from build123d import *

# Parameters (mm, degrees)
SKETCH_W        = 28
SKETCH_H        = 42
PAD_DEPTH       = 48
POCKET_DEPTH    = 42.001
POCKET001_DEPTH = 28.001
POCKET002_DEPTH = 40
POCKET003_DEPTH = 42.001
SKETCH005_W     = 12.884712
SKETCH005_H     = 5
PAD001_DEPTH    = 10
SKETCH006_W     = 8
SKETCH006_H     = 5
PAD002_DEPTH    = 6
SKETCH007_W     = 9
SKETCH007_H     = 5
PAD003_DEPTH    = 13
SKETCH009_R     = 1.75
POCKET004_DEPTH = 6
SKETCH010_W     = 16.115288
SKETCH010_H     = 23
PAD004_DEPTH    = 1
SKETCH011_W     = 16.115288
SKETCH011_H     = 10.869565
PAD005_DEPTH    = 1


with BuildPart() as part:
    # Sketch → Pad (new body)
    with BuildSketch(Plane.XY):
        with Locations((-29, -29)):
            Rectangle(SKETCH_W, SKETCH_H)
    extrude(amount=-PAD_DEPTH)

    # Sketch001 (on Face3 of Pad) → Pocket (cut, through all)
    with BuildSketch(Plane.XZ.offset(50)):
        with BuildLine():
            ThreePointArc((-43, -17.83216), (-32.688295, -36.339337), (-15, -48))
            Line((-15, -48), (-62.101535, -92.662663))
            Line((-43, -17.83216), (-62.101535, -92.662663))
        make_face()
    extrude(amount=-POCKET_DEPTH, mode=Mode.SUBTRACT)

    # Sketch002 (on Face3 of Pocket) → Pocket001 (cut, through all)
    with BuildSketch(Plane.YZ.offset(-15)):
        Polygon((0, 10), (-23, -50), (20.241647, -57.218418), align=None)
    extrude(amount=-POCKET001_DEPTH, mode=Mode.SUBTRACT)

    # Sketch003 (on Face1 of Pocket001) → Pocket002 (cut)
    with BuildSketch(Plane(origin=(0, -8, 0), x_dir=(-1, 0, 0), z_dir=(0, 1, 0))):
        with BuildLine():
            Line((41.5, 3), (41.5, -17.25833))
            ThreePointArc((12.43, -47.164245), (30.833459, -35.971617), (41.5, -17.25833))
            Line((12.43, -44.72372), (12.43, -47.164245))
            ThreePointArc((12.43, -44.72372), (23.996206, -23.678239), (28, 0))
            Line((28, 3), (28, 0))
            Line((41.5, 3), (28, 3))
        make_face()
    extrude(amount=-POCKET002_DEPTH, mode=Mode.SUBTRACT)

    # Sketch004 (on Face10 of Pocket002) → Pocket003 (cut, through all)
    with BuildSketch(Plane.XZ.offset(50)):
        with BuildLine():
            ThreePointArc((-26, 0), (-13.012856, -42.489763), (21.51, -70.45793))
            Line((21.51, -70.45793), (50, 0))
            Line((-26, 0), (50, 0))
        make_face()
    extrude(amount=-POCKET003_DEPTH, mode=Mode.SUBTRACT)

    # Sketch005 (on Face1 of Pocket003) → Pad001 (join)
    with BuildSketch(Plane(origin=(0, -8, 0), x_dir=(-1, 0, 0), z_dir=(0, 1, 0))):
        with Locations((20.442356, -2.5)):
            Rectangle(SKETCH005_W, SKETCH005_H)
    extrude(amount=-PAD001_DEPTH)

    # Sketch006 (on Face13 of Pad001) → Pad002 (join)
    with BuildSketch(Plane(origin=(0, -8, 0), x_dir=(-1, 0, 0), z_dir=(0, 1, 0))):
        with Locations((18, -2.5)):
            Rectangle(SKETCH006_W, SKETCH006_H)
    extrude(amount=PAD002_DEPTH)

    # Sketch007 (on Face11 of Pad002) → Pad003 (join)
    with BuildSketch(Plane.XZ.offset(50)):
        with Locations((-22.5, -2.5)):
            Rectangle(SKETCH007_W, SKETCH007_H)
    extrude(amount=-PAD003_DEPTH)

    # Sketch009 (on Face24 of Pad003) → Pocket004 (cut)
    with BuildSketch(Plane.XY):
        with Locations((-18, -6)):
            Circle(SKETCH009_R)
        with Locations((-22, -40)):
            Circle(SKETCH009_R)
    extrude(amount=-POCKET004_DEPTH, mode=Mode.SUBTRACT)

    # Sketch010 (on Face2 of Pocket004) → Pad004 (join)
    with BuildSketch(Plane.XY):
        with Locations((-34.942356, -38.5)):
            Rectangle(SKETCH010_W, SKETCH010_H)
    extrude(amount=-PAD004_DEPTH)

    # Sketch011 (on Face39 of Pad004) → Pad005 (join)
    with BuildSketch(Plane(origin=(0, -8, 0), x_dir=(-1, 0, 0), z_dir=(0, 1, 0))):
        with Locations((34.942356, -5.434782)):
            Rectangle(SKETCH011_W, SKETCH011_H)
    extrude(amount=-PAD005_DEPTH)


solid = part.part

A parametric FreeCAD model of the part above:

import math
import FreeCAD as App
import Part
import Sketcher

V = App.Vector
Q = App.Units.Quantity


def add_polygon(sketch, points):
    """Adds a closed chain of lines whose ends are joined by coincident constraints."""
    first, n = sketch.GeometryCount, len(points)
    for a, b in zip(points, points[1:] + points[:1]):
        sketch.addGeometry(Part.LineSegment(App.Vector(*a, 0), App.Vector(*b, 0)), False)
    for i in range(n):
        sketch.addConstraint(Sketcher.Constraint("Coincident", first + i, 2, first + (i + 1) % n, 1))

doc = App.newDocument("Part")
body = doc.addObject("PartDesign::Body", "Body")

# Sketch on XY plane
sketch1 = body.newObject("Sketcher::SketchObject", "Sketch")
sketch1.AttachmentSupport = (doc.getObject("XY_Plane"), [""])
sketch1.MapMode = "FlatFace"
add_polygon(sketch1, [(-43, -8), (-43, -50), (-15, -50), (-15, -8)])  # lines 0-3
sketch1.addConstraint(Sketcher.Constraint("Vertical", 0))
sketch1.addConstraint(Sketcher.Constraint("Horizontal", 1))
sketch1.addConstraint(Sketcher.Constraint("Vertical", 2))
sketch1.addConstraint(Sketcher.Constraint("Horizontal", 3))
sketch1.addConstraint(Sketcher.Constraint("DistanceX", 1, 1, 1, 2, Q("28 mm")))
sketch1.addConstraint(Sketcher.Constraint("DistanceY", 0, 2, 0, 1, Q("42 mm")))
sketch1.addConstraint(Sketcher.Constraint("DistanceX", 0, 2, -1, 1, Q("43 mm")))
sketch1.addConstraint(Sketcher.Constraint("DistanceY", 0, 2, -1, 1, Q("50 mm")))
pad1 = body.newObject("PartDesign::Pad", "Pad")
pad1.Profile = sketch1
pad1.Length = 48
pad1.Reversed = True

# Sketch on XZ plane
sketch2 = body.newObject("Sketcher::SketchObject", "Sketch001")
sketch2.AttachmentSupport = (doc.getObject("XZ_Plane"), [""])
sketch2.MapMode = "FlatFace"
sketch2.AttachmentOffset = App.Placement(V(0, 0, 50), App.Rotation())
sketch2.addGeometry(Part.ArcOfCircle(Part.Circle(V(0, -6, 0), V(0, 0, 1), 45), math.radians(-165), math.radians(-110)), False)
sketch2.addGeometry(Part.LineSegment(V(-43, -18, 0), V(-62, -93, 0)), False)
sketch2.addGeometry(Part.LineSegment(V(-62, -93, 0), V(-15, -48, 0)), False)
sketch2.addConstraint(Sketcher.Constraint("Coincident", 0, 1, 1, 1))
sketch2.addConstraint(Sketcher.Constraint("Coincident", 1, 2, 2, 1))
sketch2.addConstraint(Sketcher.Constraint("Coincident", 2, 2, 0, 2))
sketch2.addConstraint(Sketcher.Constraint("PointOnObject", 0, 3, -2))
sketch2.addConstraint(Sketcher.Constraint("DistanceY", 0, 3, -1, 1, Q("6 mm")))
sketch2.addConstraint(Sketcher.Constraint("DistanceX", 0, 1, -1, 1, Q("43 mm")))
sketch2.addConstraint(Sketcher.Constraint("DistanceX", 2, 2, -1, 1, Q("15 mm")))
sketch2.addConstraint(Sketcher.Constraint("DistanceY", 2, 2, -1, 1, Q("48 mm")))
sketch2.addConstraint(Sketcher.Constraint("Distance", 1, Q("77.229999 mm")))
sketch2.addConstraint(Sketcher.Constraint("Distance", 2, Q("64.91 mm")))
pocket1 = body.newObject("PartDesign::Pocket", "Pocket")
pocket1.Profile = sketch2
pocket1.Type = "ThroughAll"

# Sketch on YZ plane
sketch3 = body.newObject("Sketcher::SketchObject", "Sketch002")
sketch3.AttachmentSupport = (doc.getObject("YZ_Plane"), [""])
sketch3.MapMode = "FlatFace"
sketch3.AttachmentOffset = App.Placement(V(0, 0, -15), App.Rotation())
add_polygon(sketch3, [(0, 10), (-23, -50), (20, -57)])  # lines 0-2
sketch3.addConstraint(Sketcher.Constraint("PointOnObject", 2, 2, -2))
sketch3.addConstraint(Sketcher.Constraint("DistanceX", 0, 2, -1, 1, Q("23 mm")))
sketch3.addConstraint(Sketcher.Constraint("DistanceY", 0, 2, -1, 1, Q("50 mm")))
sketch3.addConstraint(Sketcher.Constraint("DistanceY", -1, 1, 2, 2, Q("10 mm")))
sketch3.addConstraint(Sketcher.Constraint("Distance", 2, Q("70.2 mm")))
sketch3.addConstraint(Sketcher.Constraint("Distance", 1, Q("43.84 mm")))
pocket2 = body.newObject("PartDesign::Pocket", "Pocket001")
pocket2.Profile = sketch3
pocket2.Type = "ThroughAll"

# Sketch on XZ plane
sketch4 = body.newObject("Sketcher::SketchObject", "Sketch003")
sketch4.AttachmentSupport = (doc.getObject("XZ_Plane"), [""])
sketch4.MapMode = "FlatFace"
sketch4.AttachmentOffset = App.Placement(V(0, 0, 8), App.Rotation())
sketch4.addGeometry(Part.LineSegment(V(-41.5, -17.3, 0), V(-41.5, 3, 0)), False)
sketch4.addGeometry(Part.LineSegment(V(-41.5, 3, 0), V(-28, 3, 0)), False)
sketch4.addGeometry(Part.LineSegment(V(-28, 3, 0), V(-28, 0, 0)), False)
sketch4.addGeometry(Part.ArcOfCircle(Part.Circle(V(44, 0, 0), V(0, 0, 1), 72), math.radians(180), math.radians(218)), False)
sketch4.addGeometry(Part.LineSegment(V(-12.4, -44.7, 0), V(-12.4, -47.2, 0)), False)
sketch4.addGeometry(Part.ArcOfCircle(Part.Circle(V(0, -6, 0), V(0, 0, 1), 43), math.radians(-165), math.radians(-107)), False)
sketch4.addConstraint(Sketcher.Constraint("Coincident", 0, 2, 1, 1))
sketch4.addConstraint(Sketcher.Constraint("Coincident", 1, 2, 2, 1))
sketch4.addConstraint(Sketcher.Constraint("Tangent", 2, 2, 3, 1))
sketch4.addConstraint(Sketcher.Constraint("Coincident", 3, 2, 4, 1))
sketch4.addConstraint(Sketcher.Constraint("Coincident", 4, 2, 5, 2))
sketch4.addConstraint(Sketcher.Constraint("Coincident", 5, 1, 0, 1))
sketch4.addConstraint(Sketcher.Constraint("Vertical", 0))
sketch4.addConstraint(Sketcher.Constraint("Horizontal", 1))
sketch4.addConstraint(Sketcher.Constraint("Vertical", 2))
sketch4.addConstraint(Sketcher.Constraint("Vertical", 4))
sketch4.addConstraint(Sketcher.Constraint("PointOnObject", 2, 2, -1))
sketch4.addConstraint(Sketcher.Constraint("DistanceY", 2, 2, 2, 1, Q("3 mm")))
sketch4.addConstraint(Sketcher.Constraint("DistanceX", 1, 1, 1, 2, Q("13.5 mm")))
sketch4.addConstraint(Sketcher.Constraint("DistanceX", 1, 2, -1, 1, Q("28 mm")))
sketch4.addConstraint(Sketcher.Constraint("DistanceY", 5, 3, 3, 3, Q("6 mm")))
sketch4.addConstraint(Sketcher.Constraint("DistanceX", 3, 2, -1, 1, Q("12.43 mm")))
sketch4.addConstraint(Sketcher.Constraint("Radius", 3, Q("72.01785 mm")))
sketch4.addConstraint(Sketcher.Constraint("Radius", 5, Q("42.999997 mm")))
sketch4.addConstraint(Sketcher.Constraint("DistanceY", 0, 1, 0, 2, Q("20.25833 mm")))
pocket3 = body.newObject("PartDesign::Pocket", "Pocket002")
pocket3.Profile = sketch4
pocket3.Length = 40
pocket3.Reversed = True

# Sketch on XZ plane
sketch5 = body.newObject("Sketcher::SketchObject", "Sketch004")
sketch5.AttachmentSupport = (doc.getObject("XZ_Plane"), [""])
sketch5.MapMode = "FlatFace"
sketch5.AttachmentOffset = App.Placement(V(0, 0, 50), App.Rotation())
sketch5.addGeometry(Part.ArcOfCircle(Part.Circle(V(50, 0, 0), V(0, 0, 1), 76), math.radians(-180), math.radians(-112)), False)
sketch5.addGeometry(Part.LineSegment(V(22, -70, 0), V(50, 0, 0)), False)
sketch5.addGeometry(Part.LineSegment(V(50, 0, 0), V(-26, 0, 0)), False)
sketch5.addConstraint(Sketcher.Constraint("Coincident", 0, 2, 1, 1))
sketch5.addConstraint(Sketcher.Constraint("Coincident", 1, 2, 2, 1))
sketch5.addConstraint(Sketcher.Constraint("Coincident", 2, 2, 0, 1))
sketch5.addConstraint(Sketcher.Constraint("Horizontal", 2))
sketch5.addConstraint(Sketcher.Constraint("Coincident", 1, 2, 0, 3))
sketch5.addConstraint(Sketcher.Constraint("PointOnObject", 0, 3, -1))
sketch5.addConstraint(Sketcher.Constraint("Radius", 0, Q("76.000001 mm")))
sketch5.addConstraint(Sketcher.Constraint("DistanceX", -1, 1, 0, 3, Q("50.000001 mm")))
sketch5.addConstraint(Sketcher.Constraint("DistanceX", -1, 1, 0, 2, Q("21.51 mm")))
pocket4 = body.newObject("PartDesign::Pocket", "Pocket003")
pocket4.Profile = sketch5
pocket4.Type = "ThroughAll"

# Sketch on XZ plane
sketch6 = body.newObject("Sketcher::SketchObject", "Sketch005")
sketch6.AttachmentSupport = (doc.getObject("XZ_Plane"), [""])
sketch6.MapMode = "FlatFace"
sketch6.AttachmentOffset = App.Placement(V(0, 0, 8), App.Rotation())
add_polygon(sketch6, [(-14, 0), (-14, -5), (-27, -5), (-27, 0)])  # lines 0-3
sketch6.addConstraint(Sketcher.Constraint("Vertical", 0))
sketch6.addConstraint(Sketcher.Constraint("Horizontal", 1))
sketch6.addConstraint(Sketcher.Constraint("Vertical", 2))
sketch6.addConstraint(Sketcher.Constraint("Horizontal", 3))
sketch6.addConstraint(Sketcher.Constraint("PointOnObject", 2, 2, -1))
sketch6.addConstraint(Sketcher.Constraint("DistanceY", 0, 2, 0, 1, Q("5 mm")))
sketch6.addConstraint(Sketcher.Constraint("DistanceX", 0, 2, -1, 1, Q("14 mm")))
sketch6.addConstraint(Sketcher.Constraint("DistanceX", 1, 2, 1, 1, Q("12.884712 mm")))
pad2 = body.newObject("PartDesign::Pad", "Pad001")
pad2.Profile = sketch6
pad2.Length = 10

# Sketch on XZ plane
sketch7 = body.newObject("Sketcher::SketchObject", "Sketch006")
sketch7.AttachmentSupport = (doc.getObject("XZ_Plane"), [""])
sketch7.MapMode = "FlatFace"
sketch7.AttachmentOffset = App.Placement(V(0, 0, 8), App.Rotation())
add_polygon(sketch7, [(-14, 0), (-14, -5), (-22, -5), (-22, 0)])  # lines 0-3
sketch7.addConstraint(Sketcher.Constraint("Vertical", 0))
sketch7.addConstraint(Sketcher.Constraint("Horizontal", 1))
sketch7.addConstraint(Sketcher.Constraint("Vertical", 2))
sketch7.addConstraint(Sketcher.Constraint("Horizontal", 3))
sketch7.addConstraint(Sketcher.Constraint("PointOnObject", 2, 2, -1))
sketch7.addConstraint(Sketcher.Constraint("DistanceX", 1, 2, 1, 1, Q("8 mm")))
sketch7.addConstraint(Sketcher.Constraint("DistanceY", 0, 2, 0, 1, Q("5 mm")))
sketch7.addConstraint(Sketcher.Constraint("DistanceX", 0, 2, -1, 1, Q("14 mm")))
pad3 = body.newObject("PartDesign::Pad", "Pad002")
pad3.Profile = sketch7
pad3.Length = 6
pad3.Reversed = True

# Sketch on XZ plane
sketch8 = body.newObject("Sketcher::SketchObject", "Sketch007")
sketch8.AttachmentSupport = (doc.getObject("XZ_Plane"), [""])
sketch8.MapMode = "FlatFace"
sketch8.AttachmentOffset = App.Placement(V(0, 0, 50), App.Rotation())
add_polygon(sketch8, [(-27, 0), (-27, -5), (-18, -5), (-18, 0)])  # lines 0-3
sketch8.addConstraint(Sketcher.Constraint("Vertical", 0))
sketch8.addConstraint(Sketcher.Constraint("Horizontal", 1))
sketch8.addConstraint(Sketcher.Constraint("Vertical", 2))
sketch8.addConstraint(Sketcher.Constraint("Horizontal", 3))
sketch8.addConstraint(Sketcher.Constraint("PointOnObject", 2, 2, -1))
sketch8.addConstraint(Sketcher.Constraint("DistanceX", 1, 1, 1, 2, Q("9 mm")))
sketch8.addConstraint(Sketcher.Constraint("DistanceY", 0, 2, 0, 1, Q("5 mm")))
sketch8.addConstraint(Sketcher.Constraint("DistanceX", 0, 2, -1, 1, Q("27 mm")))
pad4 = body.newObject("PartDesign::Pad", "Pad003")
pad4.Profile = sketch8
pad4.Length = 13
pad4.Reversed = True

# Sketch on XY plane
sketch9 = body.newObject("Sketcher::SketchObject", "Sketch008")
sketch9.AttachmentSupport = (doc.getObject("XY_Plane"), [""])
sketch9.MapMode = "FlatFace"
sketch9.addGeometry(Part.Circle(V(-18, -6, 0), V(0, 0, 1), 1.8), False)
sketch9.addGeometry(Part.Circle(V(-22, -40, 0), V(0, 0, 1), 1.8), False)
sketch9.addConstraint(Sketcher.Constraint("Equal", 0, 1))
sketch9.addConstraint(Sketcher.Constraint("Diameter", 0, Q("3.5 mm")))
sketch9.addConstraint(Sketcher.Constraint("DistanceX", 0, 3, -1, 1, Q("18 mm")))
sketch9.addConstraint(Sketcher.Constraint("DistanceY", 0, 3, -1, 1, Q("6 mm")))
sketch9.addConstraint(Sketcher.Constraint("DistanceX", 1, 3, -1, 1, Q("22 mm")))
sketch9.addConstraint(Sketcher.Constraint("DistanceY", 1, 3, -1, 1, Q("40 mm")))
pocket5 = body.newObject("PartDesign::Pocket", "Pocket004")
pocket5.Profile = sketch9
pocket5.Length = 6

# Sketch on XY plane
sketch10 = body.newObject("Sketcher::SketchObject", "Sketch009")
sketch10.AttachmentSupport = (doc.getObject("XY_Plane"), [""])
sketch10.MapMode = "FlatFace"
add_polygon(sketch10, [(-43, -27), (-43, -50), (-27, -50), (-27, -27)])  # lines 0-3
sketch10.addConstraint(Sketcher.Constraint("Vertical", 0))
sketch10.addConstraint(Sketcher.Constraint("Horizontal", 1))
sketch10.addConstraint(Sketcher.Constraint("Vertical", 2))
sketch10.addConstraint(Sketcher.Constraint("Horizontal", 3))
sketch10.addConstraint(Sketcher.Constraint("DistanceY", 0, 2, 0, 1, Q("23 mm")))
sketch10.addConstraint(Sketcher.Constraint("DistanceX", 0, 2, -1, 1, Q("43 mm")))
sketch10.addConstraint(Sketcher.Constraint("DistanceY", 0, 2, -1, 1, Q("50 mm")))
sketch10.addConstraint(Sketcher.Constraint("DistanceX", 1, 1, 1, 2, Q("16.115288 mm")))
pad5 = body.newObject("PartDesign::Pad", "Pad004")
pad5.Profile = sketch10
pad5.Length = 1
pad5.Reversed = True

# Sketch on XZ plane
sketch11 = body.newObject("Sketcher::SketchObject", "Sketch010")
sketch11.AttachmentSupport = (doc.getObject("XZ_Plane"), [""])
sketch11.MapMode = "FlatFace"
sketch11.AttachmentOffset = App.Placement(V(0, 0, 8), App.Rotation())
add_polygon(sketch11, [(-27, 0), (-27, -11), (-43, -11), (-43, 0)])  # lines 0-3
sketch11.addConstraint(Sketcher.Constraint("Vertical", 0))
sketch11.addConstraint(Sketcher.Constraint("Horizontal", 1))
sketch11.addConstraint(Sketcher.Constraint("Vertical", 2))
sketch11.addConstraint(Sketcher.Constraint("Horizontal", 3))
sketch11.addConstraint(Sketcher.Constraint("PointOnObject", 2, 2, -1))
sketch11.addConstraint(Sketcher.Constraint("DistanceX", 1, 2, -1, 1, Q("43 mm")))
sketch11.addConstraint(Sketcher.Constraint("DistanceX", 1, 2, 1, 1, Q("16.115288 mm")))
sketch11.addConstraint(Sketcher.Constraint("DistanceY", 0, 2, 0, 1, Q("10.869565 mm")))
pad6 = body.newObject("PartDesign::Pad", "Pad005")
pad6.Profile = sketch11
pad6.Length = 1

doc.recompute()
